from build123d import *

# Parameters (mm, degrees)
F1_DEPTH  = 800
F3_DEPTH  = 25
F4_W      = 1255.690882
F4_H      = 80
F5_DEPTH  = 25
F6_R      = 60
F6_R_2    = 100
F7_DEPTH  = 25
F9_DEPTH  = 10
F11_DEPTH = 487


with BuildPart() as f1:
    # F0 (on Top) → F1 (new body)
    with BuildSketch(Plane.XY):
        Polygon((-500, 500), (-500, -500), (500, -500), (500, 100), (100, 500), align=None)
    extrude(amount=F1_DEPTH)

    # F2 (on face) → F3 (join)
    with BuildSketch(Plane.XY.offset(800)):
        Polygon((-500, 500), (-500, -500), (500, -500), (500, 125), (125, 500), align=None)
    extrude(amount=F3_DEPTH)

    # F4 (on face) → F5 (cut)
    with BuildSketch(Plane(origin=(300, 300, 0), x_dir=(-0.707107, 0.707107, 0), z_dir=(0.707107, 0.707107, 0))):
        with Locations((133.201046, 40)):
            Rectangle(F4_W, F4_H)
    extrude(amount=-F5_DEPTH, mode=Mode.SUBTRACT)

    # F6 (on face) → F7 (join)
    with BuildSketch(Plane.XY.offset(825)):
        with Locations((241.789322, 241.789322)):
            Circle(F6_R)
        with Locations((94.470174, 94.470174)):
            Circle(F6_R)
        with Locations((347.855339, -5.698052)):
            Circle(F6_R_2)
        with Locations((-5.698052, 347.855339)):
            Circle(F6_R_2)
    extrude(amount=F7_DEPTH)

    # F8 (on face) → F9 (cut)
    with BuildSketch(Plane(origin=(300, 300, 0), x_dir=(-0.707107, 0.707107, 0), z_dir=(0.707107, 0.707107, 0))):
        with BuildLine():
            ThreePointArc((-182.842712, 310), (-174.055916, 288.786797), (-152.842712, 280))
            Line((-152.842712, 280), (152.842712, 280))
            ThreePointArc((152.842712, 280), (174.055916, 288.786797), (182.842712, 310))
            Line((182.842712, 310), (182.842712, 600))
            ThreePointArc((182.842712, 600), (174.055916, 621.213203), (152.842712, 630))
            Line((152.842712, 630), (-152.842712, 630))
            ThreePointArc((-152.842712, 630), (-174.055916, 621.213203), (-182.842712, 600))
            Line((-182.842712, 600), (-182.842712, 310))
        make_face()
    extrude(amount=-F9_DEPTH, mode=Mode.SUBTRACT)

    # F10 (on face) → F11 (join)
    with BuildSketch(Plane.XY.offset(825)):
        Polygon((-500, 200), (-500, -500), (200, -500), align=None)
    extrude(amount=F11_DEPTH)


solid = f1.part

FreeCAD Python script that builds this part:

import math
import FreeCAD as App
import Part
import Sketcher
from FreeCAD import Vector

doc = App.newDocument("Part")
body = doc.addObject("PartDesign::Body", "Body")

# Sketch on XY plane
sketch1 = doc.addObject("Sketcher::SketchObject", "Sketch")
body.addObject(sketch1)
sketch1.AttachmentSupport = (doc.XY_Plane, [""])
sketch1.MapMode = "FlatFace"
sketch1.addGeometry([
    Part.LineSegment(Vector(-500, 500, 0), Vector(-500, -500, 0)),  # 0
    Part.LineSegment(Vector(-500, -500, 0), Vector(500, -500, 0)),  # 1
    Part.LineSegment(Vector(500, -500, 0), Vector(500, 100, 0)),  # 2
    Part.LineSegment(Vector(500, 100, 0), Vector(100, 500, 0)),  # 3
    Part.LineSegment(Vector(100, 500, 0), Vector(-500, 500, 0)),  # 4
], False)
sketch1.addConstraint([
    Sketcher.Constraint("Coincident", 0, 2, 1, 1),
    Sketcher.Constraint("Coincident", 1, 2, 2, 1),
    Sketcher.Constraint("Coincident", 2, 2, 3, 1),
    Sketcher.Constraint("Coincident", 3, 2, 4, 1),
    Sketcher.Constraint("Coincident", 4, 2, 0, 1),
    Sketcher.Constraint("Vertical", 0),
    Sketcher.Constraint("Horizontal", 1),
    Sketcher.Constraint("Vertical", 2),
    Sketcher.Constraint("Horizontal", 4),
    Sketcher.Constraint("Symmetric", 1, 2, 4, 2, -1, 1),
    Sketcher.Constraint("Equal", 1, 0),
    Sketcher.Constraint("Equal", 4, 2),
    Sketcher.Constraint("DistanceX", 1, 1, 1, 2, 1000.0),
    Sketcher.Constraint("DistanceX", 4, 2, 4, 1, 600.0),
])
pad1 = doc.addObject("PartDesign::Pad", "Pad")
body.addObject(pad1)
pad1.Profile = sketch1
pad1.Length = 800

# Sketch on XY plane
sketch2 = doc.addObject("Sketcher::SketchObject", "Sketch001")
body.addObject(sketch2)
sketch2.AttachmentSupport = (doc.XY_Plane, [""])
sketch2.MapMode = "FlatFace"
sketch2.AttachmentOffset = App.Placement(Vector(0, 0, 800), App.Rotation())
sketch2.addGeometry([
    Part.LineSegment(Vector(-500, 500, 0), Vector(-500, -500, 0)),  # 0
    Part.LineSegment(Vector(-500, -500, 0), Vector(500, -500, 0)),  # 1
    Part.LineSegment(Vector(500, -500, 0), Vector(500, 125, 0)),  # 2
    Part.LineSegment(Vector(500, 125, 0), Vector(125, 500, 0)),  # 3
    Part.LineSegment(Vector(125, 500, 0), Vector(-500, 500, 0)),  # 4
], False)
sketch2.addConstraint([
    Sketcher.Constraint("Coincident", 0, 2, 1, 1),
    Sketcher.Constraint("Coincident", 1, 2, 2, 1),
    Sketcher.Constraint("Coincident", 2, 2, 3, 1),
    Sketcher.Constraint("Coincident", 3, 2, 4, 1),
    Sketcher.Constraint("Coincident", 4, 2, 0, 1),
    Sketcher.Constraint("Vertical", 0),
    Sketcher.Constraint("Horizontal", 1),
    Sketcher.Constraint("Vertical", 2),
    Sketcher.Constraint("Horizontal", 4),
    Sketcher.Constraint("Symmetric", 1, 2, 4, 2, -1, 1),
    Sketcher.Constraint("Equal", 1, 0),
    Sketcher.Constraint("Equal", 4, 2),
    Sketcher.Constraint("DistanceX", 1, 1, 1, 2, 1000.0),
    Sketcher.Constraint("DistanceX", 4, 2, 4, 1, 625.0),
])
pad2 = doc.addObject("PartDesign::Pad", "Pad001")
body.addObject(pad2)
pad2.Profile = sketch2
pad2.Length = 25

# Sketch on an angled plane
sketch3 = doc.addObject("Sketcher::SketchObject", "Sketch002")
body.addObject(sketch3)
sketch3.Placement = App.Placement(Vector(300, 300, 0), App.Rotation(Vector(-0.707106781, 0.707106781, 0), Vector(0, 0, 0.999999999), Vector(0.707106781, 0.707106781, 0), "ZXY"))
sketch3.addGeometry([
    Part.LineSegment(Vector(-494.644395, 80, 0), Vector(-494.644395, 0, 0)),
    Part.LineSegment(Vector(-494.644395, 0, 0), Vector(761.046487, 0, 0)),
    Part.LineSegment(Vector(761.046487, 0, 0), Vector(761.046487, 80, 0)),
    Part.LineSegment(Vector(761.046487, 80, 0), Vector(-494.644395, 80, 0)),
], False)
sketch3.addConstraint([
    Sketcher.Constraint("Coincident", 0, 2, 1, 1),
    Sketcher.Constraint("Coincident", 1, 2, 2, 1),
    Sketcher.Constraint("Coincident", 2, 2, 3, 1),
    Sketcher.Constraint("Coincident", 3, 2, 0, 1),
    Sketcher.Constraint("Vertical", 0),
    Sketcher.Constraint("Horizontal", 1),
    Sketcher.Constraint("Vertical", 2),
    Sketcher.Constraint("Horizontal", 3),
    Sketcher.Constraint("PointOnObject", 0, 2, -1),
    Sketcher.Constraint("DistanceY", 0, 2, 0, 1, 80.0),
    Sketcher.Constraint("DistanceX", 1, 1, 1, 2, 1255.690881),
    Sketcher.Constraint("DistanceX", 0, 2, -1, 1, 494.644395),
])
pocket1 = doc.addObject("PartDesign::Pocket", "Pocket")
body.addObject(pocket1)
pocket1.Profile = sketch3
pocket1.Length = 25

# Sketch on XY plane
sketch4 = doc.addObject("Sketcher::SketchObject", "Sketch003")
body.addObject(sketch4)
sketch4.AttachmentSupport = (doc.XY_Plane, [""])
sketch4.MapMode = "FlatFace"
sketch4.AttachmentOffset = App.Placement(Vector(0, 0, 825), App.Rotation())
sketch4.addGeometry([
    Part.Circle(Vector(241.789322, 241.789322, 0), Vector(0, 0, 1), 60),
    Part.Circle(Vector(94.470174, 94.470174, 0), Vector(0, 0, 1), 60),
    Part.Circle(Vector(347.855339, -5.698052, 0), Vector(0, 0, 1), 100),
    Part.Circle(Vector(-5.698052, 347.855339, 0), Vector(0, 0, 1), 100),
], False)
sketch4.addConstraint([
    Sketcher.Constraint("Equal", 0, 1),
    Sketcher.Constraint("Equal", 2, 3),
    Sketcher.Constraint("Diameter", 0, 120.0),
    Sketcher.Constraint("Diameter", 2, 200.0),
    Sketcher.Constraint("DistanceX", -1, 1, 0, 3, 241.789322),
    Sketcher.Constraint("DistanceY", -1, 1, 0, 3, 241.789322),
    Sketcher.Constraint("DistanceX", -1, 1, 2, 3, 347.855339),
    Sketcher.Constraint("DistanceY", 2, 3, -1, 1, 5.698052),
    Sketcher.Constraint("DistanceX", 3, 3, -1, 1, 5.698052),
    Sketcher.Constraint("DistanceY", -1, 1, 3, 3, 347.855339),
    Sketcher.Constraint("DistanceX", -1, 1, 1, 3, 94.470174),
    Sketcher.Constraint("DistanceY", -1, 1, 1, 3, 94.470174),
])
pad3 = doc.addObject("PartDesign::Pad", "Pad002")
body.addObject(pad3)
pad3.Profile = sketch4
pad3.Length = 25

# Sketch on an angled plane
sketch5 = doc.addObject("Sketcher::SketchObject", "Sketch004")
body.addObject(sketch5)
sketch5.Placement = App.Placement(Vector(300, 300, 0), App.Rotation(Vector(-0.707106781, 0.707106781, 0), Vector(0, 0, 0.999999999), Vector(0.707106781, 0.707106781, 0), "ZXY"))
sketch5.addGeometry([
    Part.ArcOfCircle(Part.Circle(Vector(-152.842712, 309.999999, 0), Vector(0, 0, 1), 30), math.radians(180), math.radians(270)),  # 0
    Part.LineSegment(Vector(-152.842712, 280, 0), Vector(152.842712, 280, 0)),  # 1
    Part.ArcOfCircle(Part.Circle(Vector(152.842712, 309.999999, 0), Vector(0, 0, 1), 30), math.radians(-90), math.radians(0)),  # 2
    Part.LineSegment(Vector(182.842712, 310, 0), Vector(182.842712, 599.999999, 0)),  # 3
    Part.ArcOfCircle(Part.Circle(Vector(152.842712, 600, 0), Vector(0, 0, 1), 30), math.radians(0), math.radians(90)),  # 4
    Part.LineSegment(Vector(152.842712, 629.999999, 0), Vector(-152.842712, 629.999999, 0)),  # 5
    Part.ArcOfCircle(Part.Circle(Vector(-152.842712, 600, 0), Vector(0, 0, 1), 30), math.radians(90), math.radians(180)),  # 6
    Part.LineSegment(Vector(-182.842712, 599.999999, 0), Vector(-182.842712, 310, 0)),  # 7
], False)
sketch5.addConstraint([
    Sketcher.Constraint("Tangent", 0, 2, 1, 1),
    Sketcher.Constraint("Tangent", 1, 2, 2, 1),
    Sketcher.Constraint("Tangent", 2, 2, 3, 1),
    Sketcher.Constraint("Tangent", 3, 2, 4, 1),
    Sketcher.Constraint("Tangent", 4, 2, 5, 1),
    Sketcher.Constraint("Tangent", 5, 2, 6, 1),
    Sketcher.Constraint("Tangent", 6, 2, 7, 1),
    Sketcher.Constraint("Tangent", 7, 2, 0, 1),
    Sketcher.Constraint("Horizontal", 1),
    Sketcher.Constraint("Vertical", 3),
    Sketcher.Constraint("Horizontal", 5),
    Sketcher.Constraint("Vertical", 7),
    Sketcher.Constraint("Equal", 0, 2),
    Sketcher.Constraint("Equal", 2, 4),
    Sketcher.Constraint("Equal", 4, 6),
    Sketcher.Constraint("Radius", 0, 30.0),
    Sketcher.Constraint("DistanceY", 3, 1, 3, 2, 290.0),
    Sketcher.Constraint("DistanceY", -1, 1, 0, 3, 309.999999),
    Sketcher.Constraint("DistanceX", 1, 1, 1, 2, 305.685424),
    Sketcher.Constraint("DistanceX", 0, 2, -1, 1, 152.842712),
])
pocket2 = doc.addObject("PartDesign::Pocket", "Pocket001")
body.addObject(pocket2)
pocket2.Profile = sketch5
pocket2.Length = 10

# Sketch on XY plane
sketch6 = doc.addObject("Sketcher::SketchObject", "Sketch005")
body.addObject(sketch6)
sketch6.AttachmentSupport = (doc.XY_Plane, [""])
sketch6.MapMode = "FlatFace"
sketch6.AttachmentOffset = App.Placement(Vector(0, 0, 825), App.Rotation())
sketch6.addGeometry([
    Part.LineSegment(Vector(-500, 200, 0), Vector(-500, -500, 0)),
    Part.LineSegment(Vector(-500, -500, 0), Vector(200, -500, 0)),
    Part.LineSegment(Vector(200, -500, 0), Vector(-500, 200, 0)),
], False)
sketch6.addConstraint([
    Sketcher.Constraint("Coincident", 0, 2, 1, 1),
    Sketcher.Constraint("Coincident", 1, 2, 2, 1),
    Sketcher.Constraint("Coincident", 2, 2, 0, 1),
    Sketcher.Constraint("Vertical", 0),
    Sketcher.Constraint("Horizontal", 1),
    Sketcher.Constraint("Equal", 1, 0),
    Sketcher.Constraint("DistanceX", 1, 1, 1, 2, 700.0),
    Sketcher.Constraint("DistanceX", 0, 2, -1, 1, 500.0),
    Sketcher.Constraint("DistanceY", 0, 2, -1, 1, 500.0),
])
pad4 = doc.addObject("PartDesign::Pad", "Pad003")
body.addObject(pad4)
pad4.Profile = sketch6
pad4.Length = 487

doc.recompute()
